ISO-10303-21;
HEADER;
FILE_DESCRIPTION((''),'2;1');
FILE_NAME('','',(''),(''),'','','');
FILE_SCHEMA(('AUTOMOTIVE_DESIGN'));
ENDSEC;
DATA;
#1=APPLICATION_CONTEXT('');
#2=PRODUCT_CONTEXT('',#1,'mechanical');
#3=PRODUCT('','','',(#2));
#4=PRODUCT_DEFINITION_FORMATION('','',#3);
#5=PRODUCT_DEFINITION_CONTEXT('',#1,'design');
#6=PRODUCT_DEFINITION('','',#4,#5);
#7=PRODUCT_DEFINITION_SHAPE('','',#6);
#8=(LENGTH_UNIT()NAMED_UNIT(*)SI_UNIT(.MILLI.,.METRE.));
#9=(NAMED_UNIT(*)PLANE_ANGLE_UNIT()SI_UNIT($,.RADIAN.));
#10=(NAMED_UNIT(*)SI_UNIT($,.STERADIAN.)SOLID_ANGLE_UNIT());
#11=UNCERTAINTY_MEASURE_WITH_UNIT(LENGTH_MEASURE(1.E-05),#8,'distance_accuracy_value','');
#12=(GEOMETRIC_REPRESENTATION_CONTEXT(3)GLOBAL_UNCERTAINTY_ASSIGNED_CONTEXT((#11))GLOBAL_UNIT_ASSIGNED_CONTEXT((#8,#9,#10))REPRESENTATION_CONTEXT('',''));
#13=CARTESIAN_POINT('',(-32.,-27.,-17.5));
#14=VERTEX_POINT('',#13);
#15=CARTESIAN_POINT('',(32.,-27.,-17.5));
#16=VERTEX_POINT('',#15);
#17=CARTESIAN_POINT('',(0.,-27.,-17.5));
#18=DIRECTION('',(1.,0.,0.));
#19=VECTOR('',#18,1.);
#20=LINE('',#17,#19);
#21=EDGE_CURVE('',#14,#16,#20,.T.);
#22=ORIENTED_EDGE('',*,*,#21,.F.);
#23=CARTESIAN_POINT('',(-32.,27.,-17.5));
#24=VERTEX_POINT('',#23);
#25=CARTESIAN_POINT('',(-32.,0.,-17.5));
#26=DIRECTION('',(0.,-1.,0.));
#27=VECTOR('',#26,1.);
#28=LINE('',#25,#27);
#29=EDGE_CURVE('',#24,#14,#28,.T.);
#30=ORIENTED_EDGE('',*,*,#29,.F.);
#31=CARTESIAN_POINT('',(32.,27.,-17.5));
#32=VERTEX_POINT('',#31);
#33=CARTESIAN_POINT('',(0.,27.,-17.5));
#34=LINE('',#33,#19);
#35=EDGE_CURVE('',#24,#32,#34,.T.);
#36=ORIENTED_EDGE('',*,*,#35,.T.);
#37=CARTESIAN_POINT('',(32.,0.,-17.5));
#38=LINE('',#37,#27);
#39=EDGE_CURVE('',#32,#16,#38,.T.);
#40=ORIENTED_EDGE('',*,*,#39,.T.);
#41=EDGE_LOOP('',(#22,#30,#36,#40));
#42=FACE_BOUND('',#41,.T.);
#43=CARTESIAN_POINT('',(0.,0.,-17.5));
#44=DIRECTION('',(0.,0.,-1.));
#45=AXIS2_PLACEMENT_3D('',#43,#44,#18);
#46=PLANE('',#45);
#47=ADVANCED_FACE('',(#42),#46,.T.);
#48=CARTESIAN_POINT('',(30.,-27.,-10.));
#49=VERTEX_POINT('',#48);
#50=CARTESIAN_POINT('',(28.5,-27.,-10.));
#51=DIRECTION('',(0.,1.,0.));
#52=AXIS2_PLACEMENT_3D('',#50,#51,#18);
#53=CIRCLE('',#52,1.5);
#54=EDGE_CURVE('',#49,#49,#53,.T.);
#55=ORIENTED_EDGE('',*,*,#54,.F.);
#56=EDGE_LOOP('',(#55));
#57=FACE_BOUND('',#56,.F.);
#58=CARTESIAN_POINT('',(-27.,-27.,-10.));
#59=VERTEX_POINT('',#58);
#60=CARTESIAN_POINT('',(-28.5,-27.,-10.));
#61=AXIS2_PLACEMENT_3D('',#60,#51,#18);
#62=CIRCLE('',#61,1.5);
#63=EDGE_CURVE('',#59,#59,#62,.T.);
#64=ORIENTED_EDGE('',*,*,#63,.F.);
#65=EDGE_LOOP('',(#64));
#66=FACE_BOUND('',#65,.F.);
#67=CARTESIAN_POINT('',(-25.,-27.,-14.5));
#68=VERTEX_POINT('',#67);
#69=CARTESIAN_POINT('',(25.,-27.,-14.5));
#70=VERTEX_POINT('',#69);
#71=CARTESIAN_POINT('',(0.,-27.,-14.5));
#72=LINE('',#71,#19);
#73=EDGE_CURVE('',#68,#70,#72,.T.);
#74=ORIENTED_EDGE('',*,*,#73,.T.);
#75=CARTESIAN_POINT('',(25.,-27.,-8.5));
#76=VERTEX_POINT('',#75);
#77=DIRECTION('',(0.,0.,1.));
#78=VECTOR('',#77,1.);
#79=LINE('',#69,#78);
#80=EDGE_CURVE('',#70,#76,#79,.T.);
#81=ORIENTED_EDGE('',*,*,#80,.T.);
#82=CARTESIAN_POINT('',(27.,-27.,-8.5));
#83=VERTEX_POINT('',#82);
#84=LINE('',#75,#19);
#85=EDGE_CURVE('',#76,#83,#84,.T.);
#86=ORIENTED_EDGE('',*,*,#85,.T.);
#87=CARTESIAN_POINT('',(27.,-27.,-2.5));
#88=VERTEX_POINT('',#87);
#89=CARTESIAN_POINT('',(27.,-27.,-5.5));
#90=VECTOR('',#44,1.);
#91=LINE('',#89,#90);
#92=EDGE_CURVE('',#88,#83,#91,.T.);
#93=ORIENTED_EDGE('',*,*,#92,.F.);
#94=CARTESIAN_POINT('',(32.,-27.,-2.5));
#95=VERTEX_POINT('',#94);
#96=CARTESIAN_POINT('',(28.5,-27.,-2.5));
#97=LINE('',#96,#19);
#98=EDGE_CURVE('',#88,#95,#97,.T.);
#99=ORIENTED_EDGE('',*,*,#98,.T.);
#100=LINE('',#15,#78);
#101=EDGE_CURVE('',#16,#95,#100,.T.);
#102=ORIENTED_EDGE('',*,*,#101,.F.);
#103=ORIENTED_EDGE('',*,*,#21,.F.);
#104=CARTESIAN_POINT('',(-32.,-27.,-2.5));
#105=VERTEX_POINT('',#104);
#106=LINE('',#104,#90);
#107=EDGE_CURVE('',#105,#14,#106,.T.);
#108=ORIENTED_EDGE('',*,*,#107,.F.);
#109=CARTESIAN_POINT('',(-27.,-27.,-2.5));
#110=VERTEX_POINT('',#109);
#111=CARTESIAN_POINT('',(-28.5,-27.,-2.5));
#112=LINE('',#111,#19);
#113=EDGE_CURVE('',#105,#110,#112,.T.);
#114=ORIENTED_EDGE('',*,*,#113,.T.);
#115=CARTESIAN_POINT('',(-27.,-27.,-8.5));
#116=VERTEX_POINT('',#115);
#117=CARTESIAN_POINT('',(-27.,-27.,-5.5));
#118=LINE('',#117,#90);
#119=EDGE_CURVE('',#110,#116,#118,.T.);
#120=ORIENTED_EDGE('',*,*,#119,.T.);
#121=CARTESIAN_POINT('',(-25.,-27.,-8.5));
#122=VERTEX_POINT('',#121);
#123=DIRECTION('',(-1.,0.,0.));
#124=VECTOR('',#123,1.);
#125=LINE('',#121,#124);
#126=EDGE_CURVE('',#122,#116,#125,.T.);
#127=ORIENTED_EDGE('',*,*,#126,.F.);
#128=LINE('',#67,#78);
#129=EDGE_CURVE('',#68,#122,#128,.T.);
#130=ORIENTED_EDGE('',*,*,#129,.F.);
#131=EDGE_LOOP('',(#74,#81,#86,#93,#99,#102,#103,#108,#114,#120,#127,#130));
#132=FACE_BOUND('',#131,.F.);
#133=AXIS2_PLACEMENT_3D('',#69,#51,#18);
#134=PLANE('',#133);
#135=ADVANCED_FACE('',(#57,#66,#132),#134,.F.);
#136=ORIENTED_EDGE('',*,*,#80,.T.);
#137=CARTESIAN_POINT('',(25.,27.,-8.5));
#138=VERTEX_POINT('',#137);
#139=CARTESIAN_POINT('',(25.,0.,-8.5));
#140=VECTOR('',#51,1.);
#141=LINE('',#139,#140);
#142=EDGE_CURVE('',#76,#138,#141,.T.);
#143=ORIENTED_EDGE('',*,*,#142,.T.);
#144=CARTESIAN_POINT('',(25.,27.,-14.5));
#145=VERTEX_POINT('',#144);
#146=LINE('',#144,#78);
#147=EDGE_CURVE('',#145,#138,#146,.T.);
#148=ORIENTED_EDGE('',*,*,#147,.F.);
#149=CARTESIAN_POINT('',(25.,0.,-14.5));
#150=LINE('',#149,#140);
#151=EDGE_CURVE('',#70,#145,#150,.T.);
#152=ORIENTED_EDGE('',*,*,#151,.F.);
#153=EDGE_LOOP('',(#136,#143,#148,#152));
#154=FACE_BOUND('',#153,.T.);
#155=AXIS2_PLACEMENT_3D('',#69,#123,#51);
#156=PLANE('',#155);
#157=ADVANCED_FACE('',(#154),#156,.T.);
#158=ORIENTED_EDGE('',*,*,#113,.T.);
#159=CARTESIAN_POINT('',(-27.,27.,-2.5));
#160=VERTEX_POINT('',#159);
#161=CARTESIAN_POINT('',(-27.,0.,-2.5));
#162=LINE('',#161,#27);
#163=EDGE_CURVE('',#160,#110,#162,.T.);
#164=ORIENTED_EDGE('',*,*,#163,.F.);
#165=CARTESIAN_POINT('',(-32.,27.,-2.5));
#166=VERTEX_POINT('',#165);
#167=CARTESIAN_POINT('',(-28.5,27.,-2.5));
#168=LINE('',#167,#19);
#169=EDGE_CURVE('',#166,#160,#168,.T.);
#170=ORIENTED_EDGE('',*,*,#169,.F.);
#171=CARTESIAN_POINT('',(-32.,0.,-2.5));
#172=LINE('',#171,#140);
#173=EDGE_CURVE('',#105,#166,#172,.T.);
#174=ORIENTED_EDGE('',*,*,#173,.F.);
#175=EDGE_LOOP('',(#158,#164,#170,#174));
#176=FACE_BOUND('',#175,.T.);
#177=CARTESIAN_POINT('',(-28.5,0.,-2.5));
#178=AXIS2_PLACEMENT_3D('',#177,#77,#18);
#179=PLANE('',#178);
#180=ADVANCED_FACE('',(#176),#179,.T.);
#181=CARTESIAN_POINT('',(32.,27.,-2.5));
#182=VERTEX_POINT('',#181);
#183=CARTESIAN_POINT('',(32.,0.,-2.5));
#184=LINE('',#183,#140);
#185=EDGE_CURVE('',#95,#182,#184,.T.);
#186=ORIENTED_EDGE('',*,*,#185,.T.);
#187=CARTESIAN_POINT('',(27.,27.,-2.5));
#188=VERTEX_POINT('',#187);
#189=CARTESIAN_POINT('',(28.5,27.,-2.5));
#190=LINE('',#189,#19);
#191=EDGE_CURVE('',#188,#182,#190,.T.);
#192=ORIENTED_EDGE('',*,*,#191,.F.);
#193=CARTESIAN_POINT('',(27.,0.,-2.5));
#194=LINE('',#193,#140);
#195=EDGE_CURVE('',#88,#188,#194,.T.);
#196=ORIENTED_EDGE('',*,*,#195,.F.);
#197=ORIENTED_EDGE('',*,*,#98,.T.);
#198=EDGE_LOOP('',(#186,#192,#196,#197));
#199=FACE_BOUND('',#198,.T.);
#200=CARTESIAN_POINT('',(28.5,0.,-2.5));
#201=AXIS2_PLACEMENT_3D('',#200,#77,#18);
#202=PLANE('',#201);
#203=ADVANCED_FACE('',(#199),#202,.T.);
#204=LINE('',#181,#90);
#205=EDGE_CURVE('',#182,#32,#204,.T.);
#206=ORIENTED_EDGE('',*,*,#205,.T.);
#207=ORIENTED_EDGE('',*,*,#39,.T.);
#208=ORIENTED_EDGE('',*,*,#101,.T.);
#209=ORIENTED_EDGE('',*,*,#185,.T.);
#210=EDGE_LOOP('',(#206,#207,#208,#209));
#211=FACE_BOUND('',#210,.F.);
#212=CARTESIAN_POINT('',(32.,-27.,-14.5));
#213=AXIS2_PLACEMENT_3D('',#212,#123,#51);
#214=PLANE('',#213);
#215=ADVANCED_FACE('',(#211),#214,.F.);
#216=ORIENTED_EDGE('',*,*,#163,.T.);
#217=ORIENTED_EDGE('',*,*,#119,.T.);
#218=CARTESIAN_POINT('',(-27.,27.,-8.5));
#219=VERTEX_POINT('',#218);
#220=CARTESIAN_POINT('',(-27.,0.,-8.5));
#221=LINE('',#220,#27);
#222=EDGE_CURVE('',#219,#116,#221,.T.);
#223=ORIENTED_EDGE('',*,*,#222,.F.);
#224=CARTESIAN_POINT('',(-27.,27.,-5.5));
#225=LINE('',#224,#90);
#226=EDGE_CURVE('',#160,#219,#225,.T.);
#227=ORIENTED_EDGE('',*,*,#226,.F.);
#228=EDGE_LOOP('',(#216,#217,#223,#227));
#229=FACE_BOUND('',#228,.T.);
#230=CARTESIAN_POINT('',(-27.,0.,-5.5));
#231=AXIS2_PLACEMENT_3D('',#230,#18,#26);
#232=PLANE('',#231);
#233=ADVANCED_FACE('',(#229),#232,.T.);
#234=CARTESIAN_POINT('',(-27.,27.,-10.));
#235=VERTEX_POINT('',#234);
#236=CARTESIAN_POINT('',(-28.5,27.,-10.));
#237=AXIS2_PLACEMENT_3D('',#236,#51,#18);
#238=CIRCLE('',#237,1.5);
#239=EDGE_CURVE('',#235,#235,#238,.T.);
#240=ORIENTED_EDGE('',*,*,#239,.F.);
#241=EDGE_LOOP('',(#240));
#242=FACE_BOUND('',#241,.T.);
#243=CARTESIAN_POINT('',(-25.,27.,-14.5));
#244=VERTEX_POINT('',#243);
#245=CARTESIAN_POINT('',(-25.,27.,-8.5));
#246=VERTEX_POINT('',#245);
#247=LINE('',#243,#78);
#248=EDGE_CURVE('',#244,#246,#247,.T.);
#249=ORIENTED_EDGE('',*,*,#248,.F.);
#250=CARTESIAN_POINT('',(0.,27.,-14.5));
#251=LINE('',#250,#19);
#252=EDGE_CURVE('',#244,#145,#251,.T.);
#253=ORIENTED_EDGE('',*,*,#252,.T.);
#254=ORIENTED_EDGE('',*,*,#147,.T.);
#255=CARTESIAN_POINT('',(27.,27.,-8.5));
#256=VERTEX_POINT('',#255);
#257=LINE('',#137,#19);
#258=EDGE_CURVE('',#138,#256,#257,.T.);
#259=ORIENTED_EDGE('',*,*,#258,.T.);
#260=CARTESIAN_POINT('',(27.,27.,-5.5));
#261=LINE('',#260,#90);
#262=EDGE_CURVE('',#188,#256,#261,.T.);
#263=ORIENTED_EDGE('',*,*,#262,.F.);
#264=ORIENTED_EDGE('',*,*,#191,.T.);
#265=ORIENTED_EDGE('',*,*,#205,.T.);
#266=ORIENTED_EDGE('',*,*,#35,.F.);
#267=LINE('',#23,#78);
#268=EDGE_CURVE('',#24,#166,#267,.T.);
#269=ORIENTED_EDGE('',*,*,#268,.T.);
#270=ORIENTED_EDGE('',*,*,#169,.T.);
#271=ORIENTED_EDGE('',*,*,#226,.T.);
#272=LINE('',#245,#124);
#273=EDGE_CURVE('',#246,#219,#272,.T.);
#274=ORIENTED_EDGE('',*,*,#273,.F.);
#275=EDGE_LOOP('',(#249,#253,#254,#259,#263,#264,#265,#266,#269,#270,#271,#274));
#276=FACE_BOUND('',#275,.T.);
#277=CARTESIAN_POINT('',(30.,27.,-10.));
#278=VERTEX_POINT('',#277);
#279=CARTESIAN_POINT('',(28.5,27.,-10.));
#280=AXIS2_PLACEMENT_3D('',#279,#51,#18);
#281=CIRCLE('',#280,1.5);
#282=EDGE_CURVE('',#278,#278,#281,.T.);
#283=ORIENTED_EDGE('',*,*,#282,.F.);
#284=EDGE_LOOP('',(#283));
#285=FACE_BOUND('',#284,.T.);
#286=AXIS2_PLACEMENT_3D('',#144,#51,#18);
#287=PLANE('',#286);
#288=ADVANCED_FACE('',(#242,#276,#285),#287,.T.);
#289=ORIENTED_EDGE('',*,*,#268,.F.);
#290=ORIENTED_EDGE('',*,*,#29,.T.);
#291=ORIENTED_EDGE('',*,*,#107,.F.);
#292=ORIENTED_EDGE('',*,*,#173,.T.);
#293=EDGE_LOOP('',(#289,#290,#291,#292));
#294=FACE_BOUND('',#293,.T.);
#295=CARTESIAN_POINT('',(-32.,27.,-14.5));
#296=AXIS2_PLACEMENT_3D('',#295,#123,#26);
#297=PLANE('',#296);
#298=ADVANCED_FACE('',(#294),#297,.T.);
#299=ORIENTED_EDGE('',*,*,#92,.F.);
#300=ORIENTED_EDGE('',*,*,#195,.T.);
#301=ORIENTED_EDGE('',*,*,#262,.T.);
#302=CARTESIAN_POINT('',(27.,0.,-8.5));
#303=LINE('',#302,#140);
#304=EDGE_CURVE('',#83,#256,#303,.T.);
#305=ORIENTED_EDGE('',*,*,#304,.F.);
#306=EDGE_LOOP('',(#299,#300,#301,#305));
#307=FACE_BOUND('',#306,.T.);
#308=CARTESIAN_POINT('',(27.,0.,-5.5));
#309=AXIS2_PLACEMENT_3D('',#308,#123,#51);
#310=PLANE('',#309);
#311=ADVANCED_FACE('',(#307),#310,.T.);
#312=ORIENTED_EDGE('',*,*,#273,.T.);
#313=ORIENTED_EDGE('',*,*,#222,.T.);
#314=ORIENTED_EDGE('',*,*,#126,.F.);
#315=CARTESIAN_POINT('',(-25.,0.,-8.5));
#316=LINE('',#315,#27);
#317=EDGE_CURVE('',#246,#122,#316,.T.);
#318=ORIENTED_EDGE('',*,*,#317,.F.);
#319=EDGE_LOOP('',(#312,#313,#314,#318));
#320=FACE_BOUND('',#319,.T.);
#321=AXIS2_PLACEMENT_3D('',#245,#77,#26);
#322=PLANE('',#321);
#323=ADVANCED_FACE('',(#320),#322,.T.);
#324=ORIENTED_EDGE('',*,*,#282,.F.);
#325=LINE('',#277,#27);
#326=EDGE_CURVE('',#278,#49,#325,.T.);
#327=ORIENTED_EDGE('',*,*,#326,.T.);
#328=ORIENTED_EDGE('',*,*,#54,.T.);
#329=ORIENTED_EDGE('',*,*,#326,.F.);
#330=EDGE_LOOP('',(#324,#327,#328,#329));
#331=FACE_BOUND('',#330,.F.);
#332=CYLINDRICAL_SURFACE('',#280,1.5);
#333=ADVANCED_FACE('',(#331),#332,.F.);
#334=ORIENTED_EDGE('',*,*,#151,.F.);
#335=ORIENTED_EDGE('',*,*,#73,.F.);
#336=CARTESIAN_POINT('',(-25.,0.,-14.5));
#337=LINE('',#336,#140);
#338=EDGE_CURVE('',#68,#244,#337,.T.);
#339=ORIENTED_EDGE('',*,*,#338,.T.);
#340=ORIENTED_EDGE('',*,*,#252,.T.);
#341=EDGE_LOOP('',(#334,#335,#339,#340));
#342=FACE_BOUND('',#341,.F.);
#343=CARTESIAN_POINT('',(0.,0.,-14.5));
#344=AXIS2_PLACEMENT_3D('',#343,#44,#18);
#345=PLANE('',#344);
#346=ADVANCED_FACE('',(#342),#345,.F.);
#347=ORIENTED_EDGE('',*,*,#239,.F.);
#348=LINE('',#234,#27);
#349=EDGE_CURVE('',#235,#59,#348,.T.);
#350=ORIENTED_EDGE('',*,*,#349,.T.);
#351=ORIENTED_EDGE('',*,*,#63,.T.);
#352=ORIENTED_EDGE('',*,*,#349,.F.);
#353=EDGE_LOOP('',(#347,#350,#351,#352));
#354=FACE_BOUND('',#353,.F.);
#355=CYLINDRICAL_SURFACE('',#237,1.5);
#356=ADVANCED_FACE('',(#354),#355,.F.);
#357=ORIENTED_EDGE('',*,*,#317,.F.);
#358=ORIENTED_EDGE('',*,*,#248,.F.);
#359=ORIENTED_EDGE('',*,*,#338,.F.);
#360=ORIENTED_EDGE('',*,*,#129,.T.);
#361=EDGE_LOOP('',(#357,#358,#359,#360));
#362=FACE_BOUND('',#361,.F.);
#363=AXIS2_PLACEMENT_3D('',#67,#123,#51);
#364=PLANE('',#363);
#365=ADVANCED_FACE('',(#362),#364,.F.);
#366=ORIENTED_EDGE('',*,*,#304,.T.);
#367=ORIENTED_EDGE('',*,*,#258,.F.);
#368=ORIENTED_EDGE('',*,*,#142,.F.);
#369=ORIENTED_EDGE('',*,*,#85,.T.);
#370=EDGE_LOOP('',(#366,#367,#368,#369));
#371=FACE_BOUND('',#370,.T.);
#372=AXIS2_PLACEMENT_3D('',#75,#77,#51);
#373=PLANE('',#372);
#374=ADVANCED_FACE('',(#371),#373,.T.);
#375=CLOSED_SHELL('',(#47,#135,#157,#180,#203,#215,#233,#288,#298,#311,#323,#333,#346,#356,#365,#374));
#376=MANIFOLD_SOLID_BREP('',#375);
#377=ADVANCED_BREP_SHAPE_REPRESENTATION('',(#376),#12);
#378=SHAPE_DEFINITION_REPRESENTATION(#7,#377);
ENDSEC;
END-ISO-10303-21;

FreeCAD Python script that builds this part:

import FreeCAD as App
import Part
import Sketcher
from FreeCAD import Vector


def add_polygon(sketch, points):
    """Adds a closed chain of lines whose ends are joined by coincident constraints."""
    first, n = sketch.GeometryCount, len(points)
    for a, b in zip(points, points[1:] + points[:1]):
        sketch.addGeometry(Part.LineSegment(App.Vector(*a, 0), App.Vector(*b, 0)), False)
    for i in range(n):
        sketch.addConstraint(Sketcher.Constraint("Coincident", first + i, 2, first + (i + 1) % n, 1))

doc = App.newDocument("Part")
body = doc.addObject("PartDesign::Body", "Body")

sketch1 = body.newObject("Sketcher::SketchObject", "Sketch")
sketch1.AttachmentSupport = (doc.getObject("XY_Plane"), [""])
sketch1.MapMode = "FlatFace"
add_polygon(sketch1, [(-32, 27), (-32, -27), (32, -27), (32, 27)])
sketch1.addConstraint([
    Sketcher.Constraint("Vertical", 0),
    Sketcher.Constraint("Horizontal", 1),
    Sketcher.Constraint("Vertical", 2),
    Sketcher.Constraint("Horizontal", 3),
    Sketcher.Constraint("Symmetric", 0, 2, 2, 2, -1, 1),
    Sketcher.Constraint("DistanceX", 1, 1, 1, 2, 64.0),
    Sketcher.Constraint("DistanceY", 0, 2, 0, 1, 54.0),
])
pad1 = body.newObject("PartDesign::Pad", "Pad")
pad1.Profile = sketch1
pad1.Length = 3

sketch2 = body.newObject("Sketcher::SketchObject", "Sketch001")
sketch2.AttachmentSupport = (doc.getObject("XY_Plane"), [""])
sketch2.MapMode = "FlatFace"
add_polygon(sketch2, [(25, -27), (25, 27), (32, 27), (32, -27)])
add_polygon(sketch2, [(-32, -27), (-32, 27), (-25, 27), (-25, -27)])
sketch2.addConstraint([
    Sketcher.Constraint("Vertical", 0),
    Sketcher.Constraint("Horizontal", 1),
    Sketcher.Constraint("Vertical", 2),
    Sketcher.Constraint("Horizontal", 3),
    Sketcher.Constraint("Vertical", 4),
    Sketcher.Constraint("Horizontal", 5),
    Sketcher.Constraint("Vertical", 6),
    Sketcher.Constraint("Horizontal", 7),
    Sketcher.Constraint("Symmetric", 2, 2, 4, 2, -1, 1),
    Sketcher.Constraint("Symmetric", 0, 2, 6, 2, -1, 1),
    Sketcher.Constraint("Horizontal", 1, 2, 4, 2),
    Sketcher.Constraint("DistanceX", 1, 1, 1, 2, 7.0),
    Sketcher.Constraint("DistanceY", 0, 1, 0, 2, 54.0),
    Sketcher.Constraint("DistanceX", -1, 1, 0, 2, 25.0),
])
pad2 = body.newObject("PartDesign::Pad", "Pad001")
pad2.Profile = sketch2
pad2.Length = 12
pad2.Reversed = True

sketch3 = body.newObject("Sketcher::SketchObject", "Sketch002")
sketch3.AttachmentSupport = (doc.getObject("XZ_Plane"), [""])
sketch3.MapMode = "FlatFace"
sketch3.AttachmentOffset = App.Placement(Vector(0, 0, 27), App.Rotation())
sketch3.addGeometry(Part.Circle(Vector(28.5, -4.5, 0), Vector(0, 0, 1), 1.5), False)
sketch3.addConstraint([
    Sketcher.Constraint("Diameter", 0, 3.0),
    Sketcher.Constraint("DistanceX", -1, 1, 0, 3, 28.5),
    Sketcher.Constraint("DistanceY", 0, 3, -1, 1, 4.5),
])
pocket1 = body.newObject("PartDesign::Pocket", "Pocket")
pocket1.Profile = sketch3
pocket1.Length = 60

sketch4 = body.newObject("Sketcher::SketchObject", "Sketch003")
sketch4.AttachmentSupport = (doc.getObject("XZ_Plane"), [""])
sketch4.MapMode = "FlatFace"
sketch4.AttachmentOffset = App.Placement(Vector(0, 0, 27), App.Rotation())
sketch4.addGeometry(Part.Circle(Vector(-28.5, -4.5, 0), Vector(0, 0, 1), 1.5), False)
sketch4.addConstraint([
    Sketcher.Constraint("Diameter", 0, 3.0),
    Sketcher.Constraint("DistanceX", 0, 3, -1, 1, 28.5),
    Sketcher.Constraint("DistanceY", 0, 3, -1, 1, 4.5),
])
pocket2 = body.newObject("PartDesign::Pocket", "Pocket001")
pocket2.Profile = sketch4
pocket2.Length = 60

sketch5 = body.newObject("Sketcher::SketchObject", "Sketch004")
sketch5.AttachmentSupport = (doc.getObject("YZ_Plane"), [""])
sketch5.MapMode = "FlatFace"
sketch5.AttachmentOffset = App.Placement(Vector(0, 0, -25), App.Rotation())
add_polygon(sketch5, [(-27, -6), (-27, -12), (27, -12), (27, -6)])
sketch5.addConstraint([
    Sketcher.Constraint("Vertical", 0),
    Sketcher.Constraint("Horizontal", 1),
    Sketcher.Constraint("Vertical", 2),
    Sketcher.Constraint("Horizontal", 3),
    Sketcher.Constraint("DistanceX", 1, 1, 1, 2, 54.0),
    Sketcher.Constraint("DistanceY", 0, 2, 0, 1, 6.0),
    Sketcher.Constraint("DistanceX", 0, 2, -1, 1, 27.0),
    Sketcher.Constraint("DistanceY", 0, 2, -1, 1, 12.0),
])
pocket3 = body.newObject("PartDesign::Pocket", "Pocket002")
pocket3.Profile = sketch5
pocket3.Length = 2

sketch6 = body.newObject("Sketcher::SketchObject", "Sketch005")
sketch6.AttachmentSupport = (doc.getObject("YZ_Plane"), [""])
sketch6.MapMode = "FlatFace"
sketch6.AttachmentOffset = App.Placement(Vector(0, 0, 25), App.Rotation())
add_polygon(sketch6, [(27, -6), (27, -12), (-27, -12), (-27, -6)])
sketch6.addConstraint([
    Sketcher.Constraint("Vertical", 0),
    Sketcher.Constraint("Horizontal", 1),
    Sketcher.Constraint("Vertical", 2),
    Sketcher.Constraint("Horizontal", 3),
    Sketcher.Constraint("DistanceX", 1, 2, 1, 1, 54.0),
    Sketcher.Constraint("DistanceY", 0, 2, 0, 1, 6.0),
    Sketcher.Constraint("DistanceX", -1, 1, 0, 2, 27.0),
    Sketcher.Constraint("DistanceY", 0, 2, -1, 1, 12.0),
])
pocket4 = body.newObject("PartDesign::Pocket", "Pocket003")
pocket4.Profile = sketch6
pocket4.Length = 2
pocket4.Reversed = True
body2 = doc.addObject("PartDesign::Body", "Body001")
doc.recompute()

body.Placement = App.Placement(Vector(0, 0, -14.5), App.Rotation(Vector(1, 0, 0), 180))
boolean = body2.newObject("PartDesign::Boolean", "Boolean")
boolean.Type = "Fuse"
boolean.addObjects([body])

doc.recompute()
